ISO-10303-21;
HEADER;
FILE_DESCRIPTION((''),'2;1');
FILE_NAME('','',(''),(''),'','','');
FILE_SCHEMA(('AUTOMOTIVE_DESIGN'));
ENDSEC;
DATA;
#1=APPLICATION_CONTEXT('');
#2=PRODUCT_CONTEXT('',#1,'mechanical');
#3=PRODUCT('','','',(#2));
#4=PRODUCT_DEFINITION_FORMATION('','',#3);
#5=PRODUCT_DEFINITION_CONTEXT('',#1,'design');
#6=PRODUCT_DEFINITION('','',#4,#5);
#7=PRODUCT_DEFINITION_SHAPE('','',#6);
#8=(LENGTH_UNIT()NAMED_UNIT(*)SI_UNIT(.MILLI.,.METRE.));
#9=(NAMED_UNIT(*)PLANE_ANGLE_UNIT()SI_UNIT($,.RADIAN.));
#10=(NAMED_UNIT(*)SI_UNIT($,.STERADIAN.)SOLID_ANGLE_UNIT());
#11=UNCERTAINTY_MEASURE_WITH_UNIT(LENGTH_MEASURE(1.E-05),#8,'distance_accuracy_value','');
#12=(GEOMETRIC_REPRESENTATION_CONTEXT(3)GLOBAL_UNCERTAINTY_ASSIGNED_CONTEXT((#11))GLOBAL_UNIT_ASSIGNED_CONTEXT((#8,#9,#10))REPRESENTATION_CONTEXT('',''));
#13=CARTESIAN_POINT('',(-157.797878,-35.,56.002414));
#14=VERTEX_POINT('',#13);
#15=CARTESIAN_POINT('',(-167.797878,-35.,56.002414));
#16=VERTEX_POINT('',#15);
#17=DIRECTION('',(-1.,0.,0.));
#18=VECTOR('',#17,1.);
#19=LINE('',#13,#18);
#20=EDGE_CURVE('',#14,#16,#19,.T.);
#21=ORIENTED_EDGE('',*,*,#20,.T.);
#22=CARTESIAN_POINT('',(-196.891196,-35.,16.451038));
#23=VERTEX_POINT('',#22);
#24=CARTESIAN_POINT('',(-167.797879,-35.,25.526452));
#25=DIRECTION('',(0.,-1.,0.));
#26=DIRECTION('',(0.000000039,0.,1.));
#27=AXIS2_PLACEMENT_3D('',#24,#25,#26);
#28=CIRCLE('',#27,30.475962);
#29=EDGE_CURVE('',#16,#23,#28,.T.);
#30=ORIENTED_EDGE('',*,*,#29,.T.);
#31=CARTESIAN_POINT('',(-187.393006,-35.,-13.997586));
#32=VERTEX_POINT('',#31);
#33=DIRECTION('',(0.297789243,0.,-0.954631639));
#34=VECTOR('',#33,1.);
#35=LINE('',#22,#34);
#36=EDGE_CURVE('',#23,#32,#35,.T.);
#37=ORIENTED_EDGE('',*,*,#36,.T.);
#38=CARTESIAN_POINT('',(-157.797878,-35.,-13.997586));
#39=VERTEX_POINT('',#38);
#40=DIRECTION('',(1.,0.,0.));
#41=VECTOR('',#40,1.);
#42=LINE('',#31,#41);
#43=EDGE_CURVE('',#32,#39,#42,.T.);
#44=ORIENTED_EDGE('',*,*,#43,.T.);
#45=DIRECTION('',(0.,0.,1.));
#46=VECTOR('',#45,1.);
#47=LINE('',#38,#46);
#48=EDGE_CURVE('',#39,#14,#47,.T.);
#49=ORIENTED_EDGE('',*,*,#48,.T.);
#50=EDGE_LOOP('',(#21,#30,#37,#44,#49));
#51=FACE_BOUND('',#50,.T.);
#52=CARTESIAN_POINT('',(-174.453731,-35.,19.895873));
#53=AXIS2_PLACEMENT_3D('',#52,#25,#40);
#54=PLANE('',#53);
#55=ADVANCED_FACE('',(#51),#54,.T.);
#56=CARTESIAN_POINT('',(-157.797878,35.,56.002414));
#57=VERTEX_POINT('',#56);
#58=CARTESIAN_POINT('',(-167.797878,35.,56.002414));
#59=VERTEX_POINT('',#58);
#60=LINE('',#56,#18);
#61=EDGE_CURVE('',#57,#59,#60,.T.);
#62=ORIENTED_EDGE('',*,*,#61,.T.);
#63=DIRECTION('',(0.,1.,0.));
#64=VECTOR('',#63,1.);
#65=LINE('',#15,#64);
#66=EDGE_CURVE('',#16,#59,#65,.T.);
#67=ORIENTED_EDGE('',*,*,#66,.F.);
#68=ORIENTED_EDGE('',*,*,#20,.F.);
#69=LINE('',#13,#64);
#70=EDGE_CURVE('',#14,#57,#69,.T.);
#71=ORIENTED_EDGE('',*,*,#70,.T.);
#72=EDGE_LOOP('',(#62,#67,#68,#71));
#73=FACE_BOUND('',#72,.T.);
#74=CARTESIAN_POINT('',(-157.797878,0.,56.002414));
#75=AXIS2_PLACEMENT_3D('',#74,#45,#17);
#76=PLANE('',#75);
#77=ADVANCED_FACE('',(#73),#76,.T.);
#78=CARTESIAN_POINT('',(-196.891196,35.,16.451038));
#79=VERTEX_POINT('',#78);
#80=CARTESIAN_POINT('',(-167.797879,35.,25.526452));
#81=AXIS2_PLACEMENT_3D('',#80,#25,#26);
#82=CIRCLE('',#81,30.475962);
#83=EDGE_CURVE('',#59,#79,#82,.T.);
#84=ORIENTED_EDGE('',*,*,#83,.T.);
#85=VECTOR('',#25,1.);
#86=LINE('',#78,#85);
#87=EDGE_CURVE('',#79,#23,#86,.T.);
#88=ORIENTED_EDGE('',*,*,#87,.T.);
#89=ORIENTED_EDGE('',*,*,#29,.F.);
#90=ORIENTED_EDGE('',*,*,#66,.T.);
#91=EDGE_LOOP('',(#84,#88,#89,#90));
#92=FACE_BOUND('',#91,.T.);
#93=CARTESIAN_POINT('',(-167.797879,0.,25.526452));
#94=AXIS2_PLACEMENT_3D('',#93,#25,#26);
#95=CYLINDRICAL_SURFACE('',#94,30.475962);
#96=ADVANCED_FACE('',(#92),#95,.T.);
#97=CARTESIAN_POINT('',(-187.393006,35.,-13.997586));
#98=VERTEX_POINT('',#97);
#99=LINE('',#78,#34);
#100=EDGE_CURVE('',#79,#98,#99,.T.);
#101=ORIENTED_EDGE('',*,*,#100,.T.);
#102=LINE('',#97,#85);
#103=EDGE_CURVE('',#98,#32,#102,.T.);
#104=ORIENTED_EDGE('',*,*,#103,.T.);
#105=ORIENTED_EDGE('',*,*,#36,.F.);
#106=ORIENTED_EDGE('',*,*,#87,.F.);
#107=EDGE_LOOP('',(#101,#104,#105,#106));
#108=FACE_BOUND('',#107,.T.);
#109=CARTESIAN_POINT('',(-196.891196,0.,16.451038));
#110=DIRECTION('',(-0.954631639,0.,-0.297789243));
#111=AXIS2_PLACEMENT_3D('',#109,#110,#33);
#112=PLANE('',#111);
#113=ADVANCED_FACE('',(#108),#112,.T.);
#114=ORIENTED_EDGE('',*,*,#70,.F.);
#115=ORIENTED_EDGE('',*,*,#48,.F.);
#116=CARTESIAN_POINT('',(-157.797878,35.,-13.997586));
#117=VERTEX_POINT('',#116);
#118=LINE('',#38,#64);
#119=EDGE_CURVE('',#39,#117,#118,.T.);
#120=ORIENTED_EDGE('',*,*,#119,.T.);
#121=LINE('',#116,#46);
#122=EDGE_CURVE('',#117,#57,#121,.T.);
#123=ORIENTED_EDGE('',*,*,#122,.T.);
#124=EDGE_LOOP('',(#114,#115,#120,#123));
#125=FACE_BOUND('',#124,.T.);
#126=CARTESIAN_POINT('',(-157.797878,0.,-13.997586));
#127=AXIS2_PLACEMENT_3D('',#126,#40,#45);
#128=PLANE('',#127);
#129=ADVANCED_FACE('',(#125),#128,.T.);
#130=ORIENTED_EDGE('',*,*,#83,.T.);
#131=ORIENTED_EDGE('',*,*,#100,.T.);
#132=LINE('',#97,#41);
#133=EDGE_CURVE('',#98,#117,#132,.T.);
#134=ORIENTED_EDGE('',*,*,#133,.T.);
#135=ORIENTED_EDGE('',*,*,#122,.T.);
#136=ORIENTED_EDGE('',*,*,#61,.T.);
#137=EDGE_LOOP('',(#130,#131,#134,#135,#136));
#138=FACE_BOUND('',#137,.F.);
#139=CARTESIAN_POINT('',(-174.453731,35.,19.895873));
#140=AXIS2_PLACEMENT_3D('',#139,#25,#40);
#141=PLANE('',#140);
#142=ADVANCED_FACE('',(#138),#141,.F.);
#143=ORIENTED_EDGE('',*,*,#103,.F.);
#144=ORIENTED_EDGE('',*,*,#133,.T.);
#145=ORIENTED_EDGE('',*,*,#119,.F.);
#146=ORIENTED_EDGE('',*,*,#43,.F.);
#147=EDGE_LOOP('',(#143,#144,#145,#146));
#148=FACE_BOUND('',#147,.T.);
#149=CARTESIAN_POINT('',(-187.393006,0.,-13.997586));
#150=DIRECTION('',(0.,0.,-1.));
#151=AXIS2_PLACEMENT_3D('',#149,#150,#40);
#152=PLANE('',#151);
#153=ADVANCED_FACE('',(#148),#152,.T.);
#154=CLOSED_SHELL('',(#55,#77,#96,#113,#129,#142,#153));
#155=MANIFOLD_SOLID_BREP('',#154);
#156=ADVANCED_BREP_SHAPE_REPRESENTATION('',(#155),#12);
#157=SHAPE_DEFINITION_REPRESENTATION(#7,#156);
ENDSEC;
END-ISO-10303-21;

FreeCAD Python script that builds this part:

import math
import FreeCAD as App
import Part
import Sketcher
from FreeCAD import Vector

doc = App.newDocument("Part")
params = doc.addObject("Spreadsheet::Sheet", "Params")
for row, (alias, value) in enumerate([
    ("sketch1_width", "10 mm"),
    ("sketch1_height", "70 mm"),
    ("pad1_length", "70 mm"),
], start=1):
    params.set(f"A{row}", alias)
    params.set(f"B{row}", "=" + value)
    params.setAlias(f"B{row}", alias)

body = doc.addObject("PartDesign::Body", "Body")

sketch1 = doc.addObject("Sketcher::SketchObject", "Sketch")
body.addObject(sketch1)
sketch1.AttachmentSupport = (doc.XZ_Plane, [""])
sketch1.MapMode = "FlatFace"
sketch1.addGeometry(Part.ArcOfCircle(Part.Circle(Vector(-168, 26, 0), Vector(0, 0, 1), 30), math.radians(90), math.radians(197)), False)
sketch1.addGeometry(Part.LineSegment(Vector(-197, 16, 0), Vector(-187, -14, 0)), False)
sketch1.addGeometry(Part.LineSegment(Vector(-187, -14, 0), Vector(-158, -14, 0)), False)
sketch1.addGeometry(Part.LineSegment(Vector(-158, -14, 0), Vector(-158, 56, 0)), False)
sketch1.addGeometry(Part.LineSegment(Vector(-158, 56, 0), Vector(-168, 56, 0)), False)
sketch1.addConstraint(Sketcher.Constraint("Tangent", 0, 2, 1, 1))
sketch1.addConstraint(Sketcher.Constraint("Coincident", 1, 2, 2, 1))
sketch1.addConstraint(Sketcher.Constraint("Coincident", 2, 2, 3, 1))
sketch1.addConstraint(Sketcher.Constraint("Coincident", 3, 2, 4, 1))
sketch1.addConstraint(Sketcher.Constraint("Tangent", 4, 2, 0, 1))
sketch1.addConstraint(Sketcher.Constraint("Horizontal", 2))
sketch1.addConstraint(Sketcher.Constraint("Vertical", 3))
sketch1.addConstraint(Sketcher.Constraint("Horizontal", 4))
sketch1.addConstraint(Sketcher.Constraint("DistanceX", 4, 2, 4, 1, 10.0))
sketch1.addConstraint(Sketcher.Constraint("DistanceY", 3, 1, 3, 2, 70.0))
sketch1.addConstraint(Sketcher.Constraint("Radius", 0, 30.475962))
sketch1.addConstraint(Sketcher.Constraint("DistanceX", 2, 1, 2, 2, 29.595128))
sketch1.addConstraint(Sketcher.Constraint("DistanceX", 0, 3, -1, 1, 167.797879))
sketch1.addConstraint(Sketcher.Constraint("DistanceY", -1, 1, 0, 2, 16.451038))
sketch1.setExpression("Constraints[8]", "Params.sketch1_width")
sketch1.setExpression("Constraints[9]", "Params.sketch1_height")
pad1 = doc.addObject("PartDesign::Pad", "Pad")
body.addObject(pad1)
pad1.Profile = sketch1
pad1.setExpression("Length", "Params.pad1_length")
pad1.Midplane = True

doc.recompute()
